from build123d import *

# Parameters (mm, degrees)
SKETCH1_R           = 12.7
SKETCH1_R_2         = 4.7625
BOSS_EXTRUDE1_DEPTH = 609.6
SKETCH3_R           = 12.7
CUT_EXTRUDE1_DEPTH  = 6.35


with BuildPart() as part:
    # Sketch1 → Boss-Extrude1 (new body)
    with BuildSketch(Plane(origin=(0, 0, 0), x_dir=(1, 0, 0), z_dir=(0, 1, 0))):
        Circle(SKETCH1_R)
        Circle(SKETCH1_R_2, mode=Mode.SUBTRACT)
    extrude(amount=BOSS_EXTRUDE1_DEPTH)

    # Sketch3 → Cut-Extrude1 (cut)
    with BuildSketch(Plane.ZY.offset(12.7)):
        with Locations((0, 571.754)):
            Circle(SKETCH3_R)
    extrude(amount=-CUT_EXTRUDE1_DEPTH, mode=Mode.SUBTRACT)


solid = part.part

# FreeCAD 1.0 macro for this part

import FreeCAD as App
import Part
import Sketcher

V = App.Vector
Q = App.Units.Quantity

doc = App.newDocument("Part")
body = doc.addObject("PartDesign::Body", "Body")

# Sketch on XZ plane
sketch1 = body.newObject("Sketcher::SketchObject", "Sketch")
sketch1.AttachmentSupport = (doc.getObject("XZ_Plane"), [""])
sketch1.MapMode = "FlatFace"
sketch1.addGeometry([
    Part.Circle(V(0, 0, 0), V(0, 0, 1), 12.7),
    Part.Circle(V(0, 0, 0), V(0, 0, 1), 4.8),
], False)
sketch1.addConstraint([
    Sketcher.Constraint("Coincident", 0, 3, -1, 1),
    Sketcher.Constraint("Coincident", 1, 3, -1, 1),
    Sketcher.Constraint("Diameter", 0, Q("1 in")),
    Sketcher.Constraint("Diameter", 1, Q("0.375 in")),
])
pad1 = body.newObject("PartDesign::Pad", "Pad")
pad1.Profile = sketch1
pad1.Length = Q("24 in")
pad1.Reversed = True

# Sketch on YZ plane
sketch2 = body.newObject("Sketcher::SketchObject", "Sketch001")
sketch2.AttachmentSupport = (doc.getObject("YZ_Plane"), [""])
sketch2.MapMode = "FlatFace"
sketch2.AttachmentOffset = App.Placement(V(0, 0, -0.5 * 25.4), App.Rotation())
sketch2.addGeometry(Part.Circle(V(572, 0, 0), V(0, 0, 1), 13), False)
sketch2.addConstraint([
    Sketcher.Constraint("PointOnObject", 0, 3, -1),
    Sketcher.Constraint("Diameter", 0, Q("1 in")),
    Sketcher.Constraint("DistanceX", -1, 1, 0, 3, Q("22.51 in")),
])
pocket1 = body.newObject("PartDesign::Pocket", "Pocket")
pocket1.Profile = sketch2
pocket1.Length = Q("0.25 in")
pocket1.Reversed = True

doc.recompute()
